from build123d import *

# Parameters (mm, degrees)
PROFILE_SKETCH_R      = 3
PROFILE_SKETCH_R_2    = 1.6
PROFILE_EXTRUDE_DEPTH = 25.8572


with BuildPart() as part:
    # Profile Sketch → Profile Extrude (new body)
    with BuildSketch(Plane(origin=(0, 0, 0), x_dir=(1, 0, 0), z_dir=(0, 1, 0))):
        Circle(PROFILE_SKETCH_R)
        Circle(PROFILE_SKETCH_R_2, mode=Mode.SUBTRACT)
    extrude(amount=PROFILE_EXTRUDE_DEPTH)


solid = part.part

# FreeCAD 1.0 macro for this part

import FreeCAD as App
import Part
import Sketcher

V = App.Vector

doc = App.newDocument("Part")
body = doc.addObject("PartDesign::Body", "Body")

sketch1 = body.newObject("Sketcher::SketchObject", "Sketch")
sketch1.AttachmentSupport = (doc.getObject("XZ_Plane"), [""])
sketch1.MapMode = "FlatFace"
sketch1.addGeometry(Part.Circle(V(0, 0, 0), V(0, 0, 1), 3), False)
sketch1.addGeometry(Part.Circle(V(0, 0, 0), V(0, 0, 1), 1.6), False)
sketch1.addConstraint(Sketcher.Constraint("Coincident", 0, 3, -1, 1))
sketch1.addConstraint(Sketcher.Constraint("Coincident", 1, 3, -1, 1))
sketch1.addConstraint(Sketcher.Constraint("Diameter", 0, 6.0))
sketch1.addConstraint(Sketcher.Constraint("Diameter", 1, 3.2))
pad1 = body.newObject("PartDesign::Pad", "Pad")
pad1.Profile = sketch1
pad1.Length = 25.8572
pad1.Reversed = True

doc.recompute()
